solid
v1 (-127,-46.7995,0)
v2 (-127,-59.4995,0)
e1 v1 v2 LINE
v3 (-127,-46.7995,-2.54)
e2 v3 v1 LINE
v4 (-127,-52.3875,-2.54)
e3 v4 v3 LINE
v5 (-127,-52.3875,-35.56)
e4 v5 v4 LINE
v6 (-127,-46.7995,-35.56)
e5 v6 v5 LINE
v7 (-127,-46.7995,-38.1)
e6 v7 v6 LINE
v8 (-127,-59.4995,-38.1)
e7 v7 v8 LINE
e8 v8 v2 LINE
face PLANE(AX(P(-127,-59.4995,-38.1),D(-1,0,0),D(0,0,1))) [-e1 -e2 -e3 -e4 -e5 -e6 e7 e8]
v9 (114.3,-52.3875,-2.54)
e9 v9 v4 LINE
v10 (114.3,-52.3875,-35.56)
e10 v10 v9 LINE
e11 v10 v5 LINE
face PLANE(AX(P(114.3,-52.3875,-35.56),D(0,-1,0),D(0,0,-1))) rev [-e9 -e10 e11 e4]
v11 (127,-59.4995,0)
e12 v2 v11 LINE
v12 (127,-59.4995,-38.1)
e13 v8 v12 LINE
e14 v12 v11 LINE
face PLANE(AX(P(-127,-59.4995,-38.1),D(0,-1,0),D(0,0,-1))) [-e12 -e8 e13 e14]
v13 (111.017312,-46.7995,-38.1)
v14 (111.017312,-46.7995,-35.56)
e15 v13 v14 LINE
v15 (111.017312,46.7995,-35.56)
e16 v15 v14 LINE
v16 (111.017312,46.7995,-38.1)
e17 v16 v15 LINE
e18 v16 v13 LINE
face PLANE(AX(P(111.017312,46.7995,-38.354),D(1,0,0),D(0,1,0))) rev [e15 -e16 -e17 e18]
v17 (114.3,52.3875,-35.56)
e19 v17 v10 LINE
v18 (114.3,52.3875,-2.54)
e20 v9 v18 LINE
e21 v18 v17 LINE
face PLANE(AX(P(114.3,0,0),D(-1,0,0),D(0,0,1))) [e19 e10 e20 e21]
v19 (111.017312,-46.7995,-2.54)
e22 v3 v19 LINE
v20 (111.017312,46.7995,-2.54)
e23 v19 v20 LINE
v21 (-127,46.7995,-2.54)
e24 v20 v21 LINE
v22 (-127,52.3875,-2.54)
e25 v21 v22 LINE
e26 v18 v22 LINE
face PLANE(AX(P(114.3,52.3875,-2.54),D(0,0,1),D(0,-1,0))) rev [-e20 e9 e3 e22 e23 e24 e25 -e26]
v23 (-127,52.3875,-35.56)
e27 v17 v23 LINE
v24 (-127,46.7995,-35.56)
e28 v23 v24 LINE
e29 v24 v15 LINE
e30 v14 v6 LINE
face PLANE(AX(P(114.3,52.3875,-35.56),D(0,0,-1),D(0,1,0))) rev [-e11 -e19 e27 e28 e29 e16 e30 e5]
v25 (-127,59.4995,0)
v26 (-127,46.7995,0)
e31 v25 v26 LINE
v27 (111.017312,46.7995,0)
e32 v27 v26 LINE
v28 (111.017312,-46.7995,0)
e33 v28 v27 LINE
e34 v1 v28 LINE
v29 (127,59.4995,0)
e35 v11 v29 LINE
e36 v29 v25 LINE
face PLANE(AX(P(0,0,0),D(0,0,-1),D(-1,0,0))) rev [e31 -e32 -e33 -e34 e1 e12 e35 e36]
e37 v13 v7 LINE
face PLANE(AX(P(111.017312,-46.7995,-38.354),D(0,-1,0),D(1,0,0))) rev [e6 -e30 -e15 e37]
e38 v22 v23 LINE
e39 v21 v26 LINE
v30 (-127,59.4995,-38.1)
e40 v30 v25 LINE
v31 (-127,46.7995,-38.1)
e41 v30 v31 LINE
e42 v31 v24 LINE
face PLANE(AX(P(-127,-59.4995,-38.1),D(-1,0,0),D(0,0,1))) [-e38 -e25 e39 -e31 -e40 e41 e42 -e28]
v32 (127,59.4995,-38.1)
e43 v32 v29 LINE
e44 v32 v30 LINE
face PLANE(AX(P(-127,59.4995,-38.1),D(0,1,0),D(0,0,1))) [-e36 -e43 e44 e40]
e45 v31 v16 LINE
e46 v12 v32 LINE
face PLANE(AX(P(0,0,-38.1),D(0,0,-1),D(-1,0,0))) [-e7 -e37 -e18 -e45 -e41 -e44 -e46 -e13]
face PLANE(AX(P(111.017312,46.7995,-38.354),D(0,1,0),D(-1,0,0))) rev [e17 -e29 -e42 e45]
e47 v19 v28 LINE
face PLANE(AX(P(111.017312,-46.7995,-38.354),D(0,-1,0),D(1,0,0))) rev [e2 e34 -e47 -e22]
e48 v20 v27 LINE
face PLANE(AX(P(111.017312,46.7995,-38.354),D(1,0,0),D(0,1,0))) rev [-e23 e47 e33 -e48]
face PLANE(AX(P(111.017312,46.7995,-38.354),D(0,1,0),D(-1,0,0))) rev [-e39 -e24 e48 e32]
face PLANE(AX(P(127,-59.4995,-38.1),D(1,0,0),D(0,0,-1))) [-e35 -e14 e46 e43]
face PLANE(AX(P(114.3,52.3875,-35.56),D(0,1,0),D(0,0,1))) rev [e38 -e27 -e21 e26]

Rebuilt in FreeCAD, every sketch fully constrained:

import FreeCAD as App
import Part
import Sketcher
Q = App.Units.Quantity


def add_polygon(sketch, points):
    """Adds a closed chain of lines whose ends are joined by coincident constraints."""
    first, n = sketch.GeometryCount, len(points)
    for a, b in zip(points, points[1:] + points[:1]):
        sketch.addGeometry(Part.LineSegment(App.Vector(*a, 0), App.Vector(*b, 0)), False)
    for i in range(n):
        sketch.addConstraint(Sketcher.Constraint("Coincident", first + i, 2, first + (i + 1) % n, 1))

doc = App.newDocument("Part")
body = doc.addObject("PartDesign::Body", "Body")

sketch1 = body.newObject("Sketcher::SketchObject", "Sketch")
sketch1.AttachmentSupport = (doc.getObject("XY_Plane"), [""])
sketch1.MapMode = "FlatFace"
add_polygon(sketch1, [(-127, 59), (-127, -59), (127, -59), (127, 59)])
sketch1.addConstraint([
    Sketcher.Constraint("Vertical", 0),
    Sketcher.Constraint("Horizontal", 1),
    Sketcher.Constraint("Vertical", 2),
    Sketcher.Constraint("Horizontal", 3),
    Sketcher.Constraint("Symmetric", 0, 2, 2, 2, -1, 1),
    Sketcher.Constraint("DistanceX", 1, 1, 1, 2, Q("10 in")),
    Sketcher.Constraint("DistanceY", 0, 2, 0, 1, Q("4.685 in")),
])
pad1 = body.newObject("PartDesign::Pad", "Pad")
pad1.Profile = sketch1
pad1.Length = Q("1.5 in")
pad1.Reversed = True

sketch2 = body.newObject("Sketcher::SketchObject", "Sketch001")
sketch2.AttachmentSupport = (doc.getObject("YZ_Plane"), [""])
sketch2.MapMode = "FlatFace"
sketch2.AttachmentOffset = App.Placement(App.Vector(0, 0, -5 * 25.4), App.Rotation())
add_polygon(sketch2, [(52, -36), (-52, -36), (-52, -3), (52, -3)])
sketch2.addConstraint([
    Sketcher.Constraint("Horizontal", 0),
    Sketcher.Constraint("Vertical", 1),
    Sketcher.Constraint("Horizontal", 2),
    Sketcher.Constraint("Vertical", 3),
    Sketcher.Constraint("DistanceY", 1, 1, 1, 2, Q("1.3 in")),
    Sketcher.Constraint("DistanceY", 0, 2, -1, 1, Q("1.4 in")),
    Sketcher.Constraint("DistanceX", 0, 2, 0, 1, Q("4.125 in")),
    Sketcher.Constraint("DistanceX", 0, 2, -1, 1, Q("2.0625 in")),
])
pocket1 = body.newObject("PartDesign::Pocket", "Pocket")
pocket1.Profile = sketch2
pocket1.Length = Q("9.5 in")
pocket1.Reversed = True

sketch3 = body.newObject("Sketcher::SketchObject", "Sketch002")
sketch3.AttachmentSupport = (doc.getObject("XY_Plane"), [""])
sketch3.MapMode = "FlatFace"
add_polygon(sketch3, [(-127, 47), (-127, -47), (111, -47), (111, 47)])
sketch3.addConstraint([
    Sketcher.Constraint("Vertical", 0),
    Sketcher.Constraint("Horizontal", 1),
    Sketcher.Constraint("Vertical", 2),
    Sketcher.Constraint("Horizontal", 3),
    Sketcher.Constraint("DistanceX", 0, 2, -1, 1, Q("5 in")),
    Sketcher.Constraint("DistanceY", 0, 2, 0, 1, Q("3.685 in")),
    Sketcher.Constraint("DistanceY", 0, 2, -1, 1, Q("1.8425 in")),
    Sketcher.Constraint("DistanceX", 1, 1, 1, 2, Q("238.017312 mm")),
])
pocket2 = body.newObject("PartDesign::Pocket", "Pocket001")
pocket2.Profile = sketch3
pocket2.Length = Q("1.51 in")

doc.recompute()
